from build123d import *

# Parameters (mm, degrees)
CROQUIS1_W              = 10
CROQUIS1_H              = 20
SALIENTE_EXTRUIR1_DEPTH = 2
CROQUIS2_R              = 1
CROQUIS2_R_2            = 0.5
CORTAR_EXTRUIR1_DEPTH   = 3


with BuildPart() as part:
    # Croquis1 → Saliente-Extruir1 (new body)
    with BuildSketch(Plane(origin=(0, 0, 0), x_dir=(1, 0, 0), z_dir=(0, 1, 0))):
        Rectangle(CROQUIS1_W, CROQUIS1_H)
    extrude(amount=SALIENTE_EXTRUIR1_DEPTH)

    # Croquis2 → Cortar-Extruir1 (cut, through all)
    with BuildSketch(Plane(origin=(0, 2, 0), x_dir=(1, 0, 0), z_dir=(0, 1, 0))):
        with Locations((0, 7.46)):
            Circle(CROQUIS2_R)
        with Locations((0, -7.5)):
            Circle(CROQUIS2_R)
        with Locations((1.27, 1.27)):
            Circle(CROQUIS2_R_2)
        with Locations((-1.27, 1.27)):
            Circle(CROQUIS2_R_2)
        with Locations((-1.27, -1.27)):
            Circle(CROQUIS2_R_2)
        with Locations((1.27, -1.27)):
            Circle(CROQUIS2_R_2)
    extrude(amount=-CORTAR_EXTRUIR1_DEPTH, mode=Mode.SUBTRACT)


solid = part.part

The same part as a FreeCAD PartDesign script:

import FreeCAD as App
import Part
import Sketcher
from FreeCAD import Vector
Q = App.Units.Quantity


def add_polygon(sketch, points):
    """Adds a closed chain of lines whose ends are joined by coincident constraints."""
    first, n = sketch.GeometryCount, len(points)
    for a, b in zip(points, points[1:] + points[:1]):
        sketch.addGeometry(Part.LineSegment(App.Vector(*a, 0), App.Vector(*b, 0)), False)
    for i in range(n):
        sketch.addConstraint(Sketcher.Constraint("Coincident", first + i, 2, first + (i + 1) % n, 1))

doc = App.newDocument("Part")
body = doc.addObject("PartDesign::Body", "Body")

# Sketch on XZ plane
sketch1 = body.newObject("Sketcher::SketchObject", "Sketch")
sketch1.AttachmentSupport = (doc.getObject("XZ_Plane"), [""])
sketch1.MapMode = "FlatFace"
add_polygon(sketch1, [(-5, -10), (-5, 10), (5, 10), (5, -10)])  # lines 0-3
sketch1.addConstraint([
    Sketcher.Constraint("Vertical", 0),
    Sketcher.Constraint("Horizontal", 1),
    Sketcher.Constraint("Vertical", 2),
    Sketcher.Constraint("Horizontal", 3),
    Sketcher.Constraint("Symmetric", 0, 2, 2, 2, -1, 1),
    Sketcher.Constraint("DistanceX", 1, 1, 1, 2, Q("10 mm")),
    Sketcher.Constraint("DistanceY", 0, 1, 0, 2, Q("20 mm")),
])
pad1 = body.newObject("PartDesign::Pad", "Pad")
pad1.Profile = sketch1
pad1.Length = 2
pad1.Reversed = True

# Sketch on XZ plane
sketch2 = body.newObject("Sketcher::SketchObject", "Sketch001")
sketch2.AttachmentSupport = (doc.getObject("XZ_Plane"), [""])
sketch2.MapMode = "FlatFace"
sketch2.AttachmentOffset = App.Placement(Vector(0, 0, -2), App.Rotation())
sketch2.addGeometry([
    Part.Circle(Vector(0, -7.5, 0), Vector(0, 0, 1), 1),  # 0
    Part.Circle(Vector(0, 7.5, 0), Vector(0, 0, 1), 1),  # 1
    Part.Circle(Vector(1.3, -1.3, 0), Vector(0, 0, 1), 0.5),  # 2
    Part.Circle(Vector(-1.3, -1.3, 0), Vector(0, 0, 1), 0.5),  # 3
    Part.Circle(Vector(-1.3, 1.3, 0), Vector(0, 0, 1), 0.5),  # 4
    Part.Circle(Vector(1.3, 1.3, 0), Vector(0, 0, 1), 0.5),  # 5
], False)
sketch2.addConstraint([
    Sketcher.Constraint("Equal", 0, 1),
    Sketcher.Constraint("Equal", 2, 3),
    Sketcher.Constraint("Equal", 3, 4),
    Sketcher.Constraint("Equal", 4, 5),
    Sketcher.Constraint("Symmetric", 2, 3, 4, 3, -1, 1),
    Sketcher.Constraint("Symmetric", 3, 3, 5, 3, -1, 1),
    Sketcher.Constraint("Symmetric", 2, 3, 3, 3, -2),
    Sketcher.Constraint("PointOnObject", 0, 3, -2),
    Sketcher.Constraint("PointOnObject", 1, 3, -2),
    Sketcher.Constraint("Diameter", 0, Q("2 mm")),
    Sketcher.Constraint("Diameter", 2, Q("1 mm")),
    Sketcher.Constraint("DistanceY", -1, 1, 1, 3, Q("7.5 mm")),
    Sketcher.Constraint("DistanceY", 0, 3, -1, 1, Q("7.46 mm")),
    Sketcher.Constraint("DistanceX", -1, 1, 2, 3, Q("1.27 mm")),
    Sketcher.Constraint("DistanceY", 2, 3, -1, 1, Q("1.27 mm")),
])
pocket1 = body.newObject("PartDesign::Pocket", "Pocket")
pocket1.Profile = sketch2
pocket1.Type = "ThroughAll"
pocket1.Reversed = True

doc.recompute()
